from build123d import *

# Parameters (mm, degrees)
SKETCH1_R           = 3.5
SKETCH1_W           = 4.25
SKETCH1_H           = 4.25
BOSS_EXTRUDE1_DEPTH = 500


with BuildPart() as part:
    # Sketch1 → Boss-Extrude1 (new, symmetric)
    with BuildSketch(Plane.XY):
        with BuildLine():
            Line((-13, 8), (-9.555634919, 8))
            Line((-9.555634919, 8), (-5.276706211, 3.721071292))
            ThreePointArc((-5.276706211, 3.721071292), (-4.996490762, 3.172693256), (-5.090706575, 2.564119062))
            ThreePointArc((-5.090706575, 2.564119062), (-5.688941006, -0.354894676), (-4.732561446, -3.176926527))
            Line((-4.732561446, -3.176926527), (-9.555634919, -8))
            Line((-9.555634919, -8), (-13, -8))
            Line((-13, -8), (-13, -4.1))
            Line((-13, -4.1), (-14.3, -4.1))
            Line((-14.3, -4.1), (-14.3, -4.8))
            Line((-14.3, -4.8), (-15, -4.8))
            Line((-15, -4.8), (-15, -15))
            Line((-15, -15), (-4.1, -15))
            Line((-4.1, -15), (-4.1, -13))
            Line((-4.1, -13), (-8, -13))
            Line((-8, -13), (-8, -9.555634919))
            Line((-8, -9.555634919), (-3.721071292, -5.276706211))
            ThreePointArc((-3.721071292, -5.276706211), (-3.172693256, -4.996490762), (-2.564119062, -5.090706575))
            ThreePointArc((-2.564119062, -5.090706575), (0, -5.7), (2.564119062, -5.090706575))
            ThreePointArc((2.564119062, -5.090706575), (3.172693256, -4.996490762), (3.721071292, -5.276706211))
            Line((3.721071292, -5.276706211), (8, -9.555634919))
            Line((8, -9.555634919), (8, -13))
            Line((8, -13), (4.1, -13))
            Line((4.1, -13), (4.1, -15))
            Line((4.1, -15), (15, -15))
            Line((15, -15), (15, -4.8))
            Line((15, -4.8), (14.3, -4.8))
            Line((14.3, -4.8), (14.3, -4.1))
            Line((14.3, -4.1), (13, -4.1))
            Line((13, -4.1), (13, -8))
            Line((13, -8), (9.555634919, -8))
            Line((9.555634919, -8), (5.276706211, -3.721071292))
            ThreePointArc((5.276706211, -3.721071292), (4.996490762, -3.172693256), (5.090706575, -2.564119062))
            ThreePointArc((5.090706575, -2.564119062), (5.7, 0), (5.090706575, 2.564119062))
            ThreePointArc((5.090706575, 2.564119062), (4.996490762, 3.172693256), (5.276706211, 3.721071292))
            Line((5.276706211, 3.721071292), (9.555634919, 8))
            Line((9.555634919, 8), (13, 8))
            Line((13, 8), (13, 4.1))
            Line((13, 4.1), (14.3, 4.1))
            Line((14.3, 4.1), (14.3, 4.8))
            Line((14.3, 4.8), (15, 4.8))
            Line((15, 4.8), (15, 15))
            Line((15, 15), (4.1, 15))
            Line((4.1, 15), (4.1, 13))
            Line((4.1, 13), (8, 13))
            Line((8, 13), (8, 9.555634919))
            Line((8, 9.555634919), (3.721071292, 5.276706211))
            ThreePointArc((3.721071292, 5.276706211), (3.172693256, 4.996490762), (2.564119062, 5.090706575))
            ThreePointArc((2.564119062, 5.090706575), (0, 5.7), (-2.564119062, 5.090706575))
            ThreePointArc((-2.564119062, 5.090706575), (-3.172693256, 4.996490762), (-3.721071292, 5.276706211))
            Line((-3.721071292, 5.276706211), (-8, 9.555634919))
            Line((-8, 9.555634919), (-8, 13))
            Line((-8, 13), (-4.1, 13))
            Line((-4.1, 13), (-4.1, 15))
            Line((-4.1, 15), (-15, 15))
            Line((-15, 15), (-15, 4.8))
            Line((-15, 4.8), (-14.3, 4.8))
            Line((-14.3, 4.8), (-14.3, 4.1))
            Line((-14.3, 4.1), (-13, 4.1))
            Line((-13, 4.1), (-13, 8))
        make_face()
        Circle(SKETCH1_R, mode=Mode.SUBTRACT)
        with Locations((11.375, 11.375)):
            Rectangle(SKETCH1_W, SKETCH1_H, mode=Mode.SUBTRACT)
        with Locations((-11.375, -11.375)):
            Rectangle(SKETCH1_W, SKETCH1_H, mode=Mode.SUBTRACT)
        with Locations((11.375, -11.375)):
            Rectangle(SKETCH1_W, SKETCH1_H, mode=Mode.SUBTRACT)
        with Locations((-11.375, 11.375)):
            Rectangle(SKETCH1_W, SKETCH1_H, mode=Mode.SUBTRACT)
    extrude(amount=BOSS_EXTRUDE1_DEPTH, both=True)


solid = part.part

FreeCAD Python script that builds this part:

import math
import FreeCAD as App
import Part
import Sketcher

doc = App.newDocument("Part")
body = doc.addObject("PartDesign::Body", "Body")

sketch1 = body.newObject("Sketcher::SketchObject", "Sketch")
sketch1.AttachmentSupport = (doc.getObject("XY_Plane"), [""])
sketch1.MapMode = "FlatFace"
sketch1.addGeometry(Part.LineSegment(App.Vector(-13, 8, 0), App.Vector(-9.6, 8, 0)), False)
sketch1.addGeometry(Part.LineSegment(App.Vector(-9.6, 8, 0), App.Vector(-5.3, 3.7, 0)), False)
sketch1.addGeometry(Part.ArcOfCircle(Part.Circle(App.Vector(-6, 3, 0), App.Vector(0, 0, 1), 1), math.radians(-27), math.radians(45)), False)
sketch1.addGeometry(Part.ArcOfCircle(Part.Circle(App.Vector(0, 0, 0), App.Vector(0, 0, 1), 5.7), math.radians(153), math.radians(214)), False)
sketch1.addGeometry(Part.LineSegment(App.Vector(-4.7, -3.2, 0), App.Vector(-9.6, -8, 0)), False)
sketch1.addGeometry(Part.LineSegment(App.Vector(-9.6, -8, 0), App.Vector(-13, -8, 0)), False)
sketch1.addGeometry(Part.LineSegment(App.Vector(-13, -8, 0), App.Vector(-13, -4.1, 0)), False)
sketch1.addGeometry(Part.LineSegment(App.Vector(-13, -4.1, 0), App.Vector(-14.3, -4.1, 0)), False)
sketch1.addGeometry(Part.LineSegment(App.Vector(-14.3, -4.1, 0), App.Vector(-14.3, -4.8, 0)), False)
sketch1.addGeometry(Part.LineSegment(App.Vector(-14.3, -4.8, 0), App.Vector(-15, -4.8, 0)), False)
sketch1.addGeometry(Part.LineSegment(App.Vector(-15, -4.8, 0), App.Vector(-15, -15, 0)), False)
sketch1.addGeometry(Part.LineSegment(App.Vector(-15, -15, 0), App.Vector(-4.1, -15, 0)), False)
sketch1.addGeometry(Part.LineSegment(App.Vector(-4.1, -15, 0), App.Vector(-4.1, -13, 0)), False)
sketch1.addGeometry(Part.LineSegment(App.Vector(-4.1, -13, 0), App.Vector(-8, -13, 0)), False)
sketch1.addGeometry(Part.LineSegment(App.Vector(-8, -13, 0), App.Vector(-8, -9.6, 0)), False)
sketch1.addGeometry(Part.LineSegment(App.Vector(-8, -9.6, 0), App.Vector(-3.7, -5.3, 0)), False)
sketch1.addGeometry(Part.ArcOfCircle(Part.Circle(App.Vector(-3, -6, 0), App.Vector(0, 0, 1), 1), math.radians(63), math.radians(135)), False)
sketch1.addGeometry(Part.ArcOfCircle(Part.Circle(App.Vector(0, 0, 0), App.Vector(0, 0, 1), 5.7), math.radians(-117), math.radians(-63)), False)
sketch1.addGeometry(Part.ArcOfCircle(Part.Circle(App.Vector(3, -6, 0), App.Vector(0, 0, 1), 1), math.radians(45), math.radians(117)), False)
sketch1.addGeometry(Part.LineSegment(App.Vector(3.7, -5.3, 0), App.Vector(8, -9.6, 0)), False)
sketch1.addGeometry(Part.LineSegment(App.Vector(8, -9.6, 0), App.Vector(8, -13, 0)), False)
sketch1.addGeometry(Part.LineSegment(App.Vector(8, -13, 0), App.Vector(4.1, -13, 0)), False)
sketch1.addGeometry(Part.LineSegment(App.Vector(4.1, -13, 0), App.Vector(4.1, -15, 0)), False)
sketch1.addGeometry(Part.LineSegment(App.Vector(4.1, -15, 0), App.Vector(15, -15, 0)), False)
sketch1.addGeometry(Part.LineSegment(App.Vector(15, -15, 0), App.Vector(15, -4.8, 0)), False)
sketch1.addGeometry(Part.LineSegment(App.Vector(15, -4.8, 0), App.Vector(14.3, -4.8, 0)), False)
sketch1.addGeometry(Part.LineSegment(App.Vector(14.3, -4.8, 0), App.Vector(14.3, -4.1, 0)), False)
sketch1.addGeometry(Part.LineSegment(App.Vector(14.3, -4.1, 0), App.Vector(13, -4.1, 0)), False)
sketch1.addGeometry(Part.LineSegment(App.Vector(13, -4.1, 0), App.Vector(13, -8, 0)), False)
sketch1.addGeometry(Part.LineSegment(App.Vector(13, -8, 0), App.Vector(9.6, -8, 0)), False)
sketch1.addGeometry(Part.LineSegment(App.Vector(9.6, -8, 0), App.Vector(5.3, -3.7, 0)), False)
sketch1.addGeometry(Part.ArcOfCircle(Part.Circle(App.Vector(6, -3, 0), App.Vector(0, 0, 1), 1), math.radians(153), math.radians(225)), False)
sketch1.addGeometry(Part.ArcOfCircle(Part.Circle(App.Vector(0, 0, 0), App.Vector(0, 0, 1), 5.7), math.radians(-27), math.radians(27)), False)
sketch1.addGeometry(Part.ArcOfCircle(Part.Circle(App.Vector(6, 3, 0), App.Vector(0, 0, 1), 1), math.radians(135), math.radians(207)), False)
sketch1.addGeometry(Part.LineSegment(App.Vector(5.3, 3.7, 0), App.Vector(9.6, 8, 0)), False)
sketch1.addGeometry(Part.LineSegment(App.Vector(9.6, 8, 0), App.Vector(13, 8, 0)), False)
sketch1.addGeometry(Part.LineSegment(App.Vector(13, 8, 0), App.Vector(13, 4.1, 0)), False)
sketch1.addGeometry(Part.LineSegment(App.Vector(13, 4.1, 0), App.Vector(14.3, 4.1, 0)), False)
sketch1.addGeometry(Part.LineSegment(App.Vector(14.3, 4.1, 0), App.Vector(14.3, 4.8, 0)), False)
sketch1.addGeometry(Part.LineSegment(App.Vector(14.3, 4.8, 0), App.Vector(15, 4.8, 0)), False)
sketch1.addGeometry(Part.LineSegment(App.Vector(15, 4.8, 0), App.Vector(15, 15, 0)), False)
sketch1.addGeometry(Part.LineSegment(App.Vector(15, 15, 0), App.Vector(4.1, 15, 0)), False)
sketch1.addGeometry(Part.LineSegment(App.Vector(4.1, 15, 0), App.Vector(4.1, 13, 0)), False)
sketch1.addGeometry(Part.LineSegment(App.Vector(4.1, 13, 0), App.Vector(8, 13, 0)), False)
sketch1.addGeometry(Part.LineSegment(App.Vector(8, 13, 0), App.Vector(8, 9.6, 0)), False)
sketch1.addGeometry(Part.LineSegment(App.Vector(8, 9.6, 0), App.Vector(3.7, 5.3, 0)), False)
sketch1.addGeometry(Part.ArcOfCircle(Part.Circle(App.Vector(3, 6, 0), App.Vector(0, 0, 1), 1), math.radians(-117), math.radians(-45)), False)
sketch1.addGeometry(Part.ArcOfCircle(Part.Circle(App.Vector(0, 0, 0), App.Vector(0, 0, 1), 5.7), math.radians(63), math.radians(117)), False)
sketch1.addGeometry(Part.ArcOfCircle(Part.Circle(App.Vector(-3, 6, 0), App.Vector(0, 0, 1), 1), math.radians(-135), math.radians(-63)), False)
sketch1.addGeometry(Part.LineSegment(App.Vector(-3.7, 5.3, 0), App.Vector(-8, 9.6, 0)), False)
sketch1.addGeometry(Part.LineSegment(App.Vector(-8, 9.6, 0), App.Vector(-8, 13, 0)), False)
sketch1.addGeometry(Part.LineSegment(App.Vector(-8, 13, 0), App.Vector(-4.1, 13, 0)), False)
sketch1.addGeometry(Part.LineSegment(App.Vector(-4.1, 13, 0), App.Vector(-4.1, 15, 0)), False)
sketch1.addGeometry(Part.LineSegment(App.Vector(-4.1, 15, 0), App.Vector(-15, 15, 0)), False)
sketch1.addGeometry(Part.LineSegment(App.Vector(-15, 15, 0), App.Vector(-15, 4.8, 0)), False)
sketch1.addGeometry(Part.LineSegment(App.Vector(-15, 4.8, 0), App.Vector(-14.3, 4.8, 0)), False)
sketch1.addGeometry(Part.LineSegment(App.Vector(-14.3, 4.8, 0), App.Vector(-14.3, 4.1, 0)), False)
sketch1.addGeometry(Part.LineSegment(App.Vector(-14.3, 4.1, 0), App.Vector(-13, 4.1, 0)), False)
sketch1.addGeometry(Part.LineSegment(App.Vector(-13, 4.1, 0), App.Vector(-13, 8, 0)), False)
sketch1.addGeometry(Part.LineSegment(App.Vector(-9.2, -13.5, 0), App.Vector(-13.5, -13.5, 0)), False)
sketch1.addGeometry(Part.LineSegment(App.Vector(-13.5, -13.5, 0), App.Vector(-13.5, -9.2, 0)), False)
sketch1.addGeometry(Part.LineSegment(App.Vector(-13.5, -9.2, 0), App.Vector(-9.2, -9.2, 0)), False)
sketch1.addGeometry(Part.LineSegment(App.Vector(-9.2, -9.2, 0), App.Vector(-9.2, -13.5, 0)), False)
sketch1.addGeometry(Part.LineSegment(App.Vector(13.5, -13.5, 0), App.Vector(9.2, -13.5, 0)), False)
sketch1.addGeometry(Part.LineSegment(App.Vector(9.2, -13.5, 0), App.Vector(9.2, -9.2, 0)), False)
sketch1.addGeometry(Part.LineSegment(App.Vector(9.2, -9.2, 0), App.Vector(13.5, -9.2, 0)), False)
sketch1.addGeometry(Part.LineSegment(App.Vector(13.5, -9.2, 0), App.Vector(13.5, -13.5, 0)), False)
sketch1.addGeometry(Part.LineSegment(App.Vector(-9.2, 9.2, 0), App.Vector(-13.5, 9.2, 0)), False)
sketch1.addGeometry(Part.LineSegment(App.Vector(-13.5, 9.2, 0), App.Vector(-13.5, 13.5, 0)), False)
sketch1.addGeometry(Part.LineSegment(App.Vector(-13.5, 13.5, 0), App.Vector(-9.2, 13.5, 0)), False)
sketch1.addGeometry(Part.LineSegment(App.Vector(-9.2, 13.5, 0), App.Vector(-9.2, 9.2, 0)), False)
sketch1.addGeometry(Part.Circle(App.Vector(0, 0, 0), App.Vector(0, 0, 1), 3.5), False)
sketch1.addGeometry(Part.LineSegment(App.Vector(13.5, 9.2, 0), App.Vector(9.2, 9.2, 0)), False)
sketch1.addGeometry(Part.LineSegment(App.Vector(9.2, 9.2, 0), App.Vector(9.2, 13.5, 0)), False)
sketch1.addGeometry(Part.LineSegment(App.Vector(9.2, 13.5, 0), App.Vector(13.5, 13.5, 0)), False)
sketch1.addGeometry(Part.LineSegment(App.Vector(13.5, 13.5, 0), App.Vector(13.5, 9.2, 0)), False)
sketch1.addConstraint(Sketcher.Constraint("Coincident", 0, 2, 1, 1))
sketch1.addConstraint(Sketcher.Constraint("Tangent", 1, 2, 2, 2))
sketch1.addConstraint(Sketcher.Constraint("Tangent", 2, 1, 3, 1))
sketch1.addConstraint(Sketcher.Constraint("Coincident", 3, 2, 4, 1))
sketch1.addConstraint(Sketcher.Constraint("Coincident", 4, 2, 5, 1))
sketch1.addConstraint(Sketcher.Constraint("Coincident", 5, 2, 6, 1))
sketch1.addConstraint(Sketcher.Constraint("Coincident", 6, 2, 7, 1))
sketch1.addConstraint(Sketcher.Constraint("Coincident", 7, 2, 8, 1))
sketch1.addConstraint(Sketcher.Constraint("Coincident", 8, 2, 9, 1))
sketch1.addConstraint(Sketcher.Constraint("Coincident", 9, 2, 10, 1))
sketch1.addConstraint(Sketcher.Constraint("Coincident", 10, 2, 11, 1))
sketch1.addConstraint(Sketcher.Constraint("Coincident", 11, 2, 12, 1))
sketch1.addConstraint(Sketcher.Constraint("Coincident", 12, 2, 13, 1))
sketch1.addConstraint(Sketcher.Constraint("Coincident", 13, 2, 14, 1))
sketch1.addConstraint(Sketcher.Constraint("Coincident", 14, 2, 15, 1))
sketch1.addConstraint(Sketcher.Constraint("Tangent", 15, 2, 16, 2))
sketch1.addConstraint(Sketcher.Constraint("Tangent", 16, 1, 17, 1))
sketch1.addConstraint(Sketcher.Constraint("Tangent", 17, 2, 18, 2))
sketch1.addConstraint(Sketcher.Constraint("Tangent", 18, 1, 19, 1))
sketch1.addConstraint(Sketcher.Constraint("Coincident", 19, 2, 20, 1))
sketch1.addConstraint(Sketcher.Constraint("Coincident", 20, 2, 21, 1))
sketch1.addConstraint(Sketcher.Constraint("Coincident", 21, 2, 22, 1))
sketch1.addConstraint(Sketcher.Constraint("Coincident", 22, 2, 23, 1))
sketch1.addConstraint(Sketcher.Constraint("Coincident", 23, 2, 24, 1))
sketch1.addConstraint(Sketcher.Constraint("Coincident", 24, 2, 25, 1))
sketch1.addConstraint(Sketcher.Constraint("Coincident", 25, 2, 26, 1))
sketch1.addConstraint(Sketcher.Constraint("Coincident", 26, 2, 27, 1))
sketch1.addConstraint(Sketcher.Constraint("Coincident", 27, 2, 28, 1))
sketch1.addConstraint(Sketcher.Constraint("Coincident", 28, 2, 29, 1))
sketch1.addConstraint(Sketcher.Constraint("Coincident", 29, 2, 30, 1))
sketch1.addConstraint(Sketcher.Constraint("Tangent", 30, 2, 31, 2))
sketch1.addConstraint(Sketcher.Constraint("Tangent", 31, 1, 32, 1))
sketch1.addConstraint(Sketcher.Constraint("Tangent", 32, 2, 33, 2))
sketch1.addConstraint(Sketcher.Constraint("Tangent", 33, 1, 34, 1))
sketch1.addConstraint(Sketcher.Constraint("Coincident", 34, 2, 35, 1))
sketch1.addConstraint(Sketcher.Constraint("Coincident", 35, 2, 36, 1))
sketch1.addConstraint(Sketcher.Constraint("Coincident", 36, 2, 37, 1))
sketch1.addConstraint(Sketcher.Constraint("Coincident", 37, 2, 38, 1))
sketch1.addConstraint(Sketcher.Constraint("Coincident", 38, 2, 39, 1))
sketch1.addConstraint(Sketcher.Constraint("Coincident", 39, 2, 40, 1))
sketch1.addConstraint(Sketcher.Constraint("Coincident", 40, 2, 41, 1))
sketch1.addConstraint(Sketcher.Constraint("Coincident", 41, 2, 42, 1))
sketch1.addConstraint(Sketcher.Constraint("Coincident", 42, 2, 43, 1))
sketch1.addConstraint(Sketcher.Constraint("Coincident", 43, 2, 44, 1))
sketch1.addConstraint(Sketcher.Constraint("Coincident", 44, 2, 45, 1))
sketch1.addConstraint(Sketcher.Constraint("Tangent", 45, 2, 46, 2))
sketch1.addConstraint(Sketcher.Constraint("Tangent", 46, 1, 47, 1))
sketch1.addConstraint(Sketcher.Constraint("Tangent", 47, 2, 48, 2))
sketch1.addConstraint(Sketcher.Constraint("Tangent", 48, 1, 49, 1))
sketch1.addConstraint(Sketcher.Constraint("Coincident", 49, 2, 50, 1))
sketch1.addConstraint(Sketcher.Constraint("Coincident", 50, 2, 51, 1))
sketch1.addConstraint(Sketcher.Constraint("Coincident", 51, 2, 52, 1))
sketch1.addConstraint(Sketcher.Constraint("Coincident", 52, 2, 53, 1))
sketch1.addConstraint(Sketcher.Constraint("Coincident", 53, 2, 54, 1))
sketch1.addConstraint(Sketcher.Constraint("Coincident", 54, 2, 55, 1))
sketch1.addConstraint(Sketcher.Constraint("Coincident", 55, 2, 56, 1))
sketch1.addConstraint(Sketcher.Constraint("Coincident", 56, 2, 57, 1))
sketch1.addConstraint(Sketcher.Constraint("Coincident", 57, 2, 58, 1))
sketch1.addConstraint(Sketcher.Constraint("Coincident", 58, 2, 0, 1))
sketch1.addConstraint(Sketcher.Constraint("Coincident", 59, 2, 60, 1))
sketch1.addConstraint(Sketcher.Constraint("Coincident", 60, 2, 61, 1))
sketch1.addConstraint(Sketcher.Constraint("Coincident", 61, 2, 62, 1))
sketch1.addConstraint(Sketcher.Constraint("Coincident", 62, 2, 59, 1))
sketch1.addConstraint(Sketcher.Constraint("Coincident", 63, 2, 64, 1))
sketch1.addConstraint(Sketcher.Constraint("Coincident", 64, 2, 65, 1))
sketch1.addConstraint(Sketcher.Constraint("Coincident", 65, 2, 66, 1))
sketch1.addConstraint(Sketcher.Constraint("Coincident", 66, 2, 63, 1))
sketch1.addConstraint(Sketcher.Constraint("Coincident", 67, 2, 68, 1))
sketch1.addConstraint(Sketcher.Constraint("Coincident", 68, 2, 69, 1))
sketch1.addConstraint(Sketcher.Constraint("Coincident", 69, 2, 70, 1))
sketch1.addConstraint(Sketcher.Constraint("Coincident", 70, 2, 67, 1))
sketch1.addConstraint(Sketcher.Constraint("Coincident", 72, 2, 73, 1))
sketch1.addConstraint(Sketcher.Constraint("Coincident", 73, 2, 74, 1))
sketch1.addConstraint(Sketcher.Constraint("Coincident", 74, 2, 75, 1))
sketch1.addConstraint(Sketcher.Constraint("Coincident", 75, 2, 72, 1))
sketch1.addConstraint(Sketcher.Constraint("Horizontal", 0))
sketch1.addConstraint(Sketcher.Constraint("Horizontal", 5))
sketch1.addConstraint(Sketcher.Constraint("Vertical", 6))
sketch1.addConstraint(Sketcher.Constraint("Horizontal", 7))
sketch1.addConstraint(Sketcher.Constraint("Vertical", 8))
sketch1.addConstraint(Sketcher.Constraint("Horizontal", 9))
sketch1.addConstraint(Sketcher.Constraint("Vertical", 10))
sketch1.addConstraint(Sketcher.Constraint("Horizontal", 11))
sketch1.addConstraint(Sketcher.Constraint("Vertical", 12))
sketch1.addConstraint(Sketcher.Constraint("Horizontal", 13))
sketch1.addConstraint(Sketcher.Constraint("Vertical", 14))
sketch1.addConstraint(Sketcher.Constraint("Vertical", 20))
sketch1.addConstraint(Sketcher.Constraint("Horizontal", 21))
sketch1.addConstraint(Sketcher.Constraint("Vertical", 22))
sketch1.addConstraint(Sketcher.Constraint("Horizontal", 23))
sketch1.addConstraint(Sketcher.Constraint("Vertical", 24))
sketch1.addConstraint(Sketcher.Constraint("Horizontal", 25))
sketch1.addConstraint(Sketcher.Constraint("Vertical", 26))
sketch1.addConstraint(Sketcher.Constraint("Horizontal", 27))
sketch1.addConstraint(Sketcher.Constraint("Vertical", 28))
sketch1.addConstraint(Sketcher.Constraint("Horizontal", 29))
sketch1.addConstraint(Sketcher.Constraint("Horizontal", 35))
sketch1.addConstraint(Sketcher.Constraint("Vertical", 36))
sketch1.addConstraint(Sketcher.Constraint("Horizontal", 37))
sketch1.addConstraint(Sketcher.Constraint("Vertical", 38))
sketch1.addConstraint(Sketcher.Constraint("Horizontal", 39))
sketch1.addConstraint(Sketcher.Constraint("Vertical", 40))
sketch1.addConstraint(Sketcher.Constraint("Horizontal", 41))
sketch1.addConstraint(Sketcher.Constraint("Vertical", 42))
sketch1.addConstraint(Sketcher.Constraint("Horizontal", 43))
sketch1.addConstraint(Sketcher.Constraint("Vertical", 44))
sketch1.addConstraint(Sketcher.Constraint("Vertical", 50))
sketch1.addConstraint(Sketcher.Constraint("Horizontal", 51))
sketch1.addConstraint(Sketcher.Constraint("Vertical", 52))
sketch1.addConstraint(Sketcher.Constraint("Horizontal", 53))
sketch1.addConstraint(Sketcher.Constraint("Vertical", 54))
sketch1.addConstraint(Sketcher.Constraint("Horizontal", 55))
sketch1.addConstraint(Sketcher.Constraint("Vertical", 56))
sketch1.addConstraint(Sketcher.Constraint("Horizontal", 57))
sketch1.addConstraint(Sketcher.Constraint("Vertical", 58))
sketch1.addConstraint(Sketcher.Constraint("Horizontal", 59))
sketch1.addConstraint(Sketcher.Constraint("Vertical", 60))
sketch1.addConstraint(Sketcher.Constraint("Horizontal", 61))
sketch1.addConstraint(Sketcher.Constraint("Vertical", 62))
sketch1.addConstraint(Sketcher.Constraint("Horizontal", 63))
sketch1.addConstraint(Sketcher.Constraint("Vertical", 64))
sketch1.addConstraint(Sketcher.Constraint("Horizontal", 65))
sketch1.addConstraint(Sketcher.Constraint("Vertical", 66))
sketch1.addConstraint(Sketcher.Constraint("Horizontal", 67))
sketch1.addConstraint(Sketcher.Constraint("Vertical", 68))
sketch1.addConstraint(Sketcher.Constraint("Horizontal", 69))
sketch1.addConstraint(Sketcher.Constraint("Vertical", 70))
sketch1.addConstraint(Sketcher.Constraint("Horizontal", 72))
sketch1.addConstraint(Sketcher.Constraint("Vertical", 73))
sketch1.addConstraint(Sketcher.Constraint("Horizontal", 74))
sketch1.addConstraint(Sketcher.Constraint("Vertical", 75))
sketch1.addConstraint(Sketcher.Constraint("Coincident", 3, 3, -1, 1))
sketch1.addConstraint(Sketcher.Constraint("Coincident", 17, 3, -1, 1))
sketch1.addConstraint(Sketcher.Constraint("Coincident", 32, 3, -1, 1))
sketch1.addConstraint(Sketcher.Constraint("Coincident", 47, 3, -1, 1))
sketch1.addConstraint(Sketcher.Constraint("Coincident", 71, 3, -1, 1))
sketch1.addConstraint(Sketcher.Constraint("Equal", 2, 16))
sketch1.addConstraint(Sketcher.Constraint("Equal", 3, 17))
sketch1.addConstraint(Sketcher.Constraint("Equal", 16, 18))
sketch1.addConstraint(Sketcher.Constraint("Equal", 18, 31))
sketch1.addConstraint(Sketcher.Constraint("Equal", 17, 32))
sketch1.addConstraint(Sketcher.Constraint("Equal", 31, 33))
sketch1.addConstraint(Sketcher.Constraint("Equal", 33, 46))
sketch1.addConstraint(Sketcher.Constraint("Equal", 32, 47))
sketch1.addConstraint(Sketcher.Constraint("Equal", 46, 48))
sketch1.addConstraint(Sketcher.Constraint("Symmetric", 0, 2, 29, 2, -1, 1))
sketch1.addConstraint(Sketcher.Constraint("Symmetric", 4, 2, 34, 2, -1, 1))
sketch1.addConstraint(Sketcher.Constraint("Symmetric", 6, 2, 36, 2, -1, 1))
sketch1.addConstraint(Sketcher.Constraint("Symmetric", 8, 2, 38, 2, -1, 1))
sketch1.addConstraint(Sketcher.Constraint("Symmetric", 10, 2, 40, 2, -1, 1))
sketch1.addConstraint(Sketcher.Constraint("Symmetric", 12, 2, 42, 2, -1, 1))
sketch1.addConstraint(Sketcher.Constraint("Symmetric", 14, 2, 44, 2, -1, 1))
sketch1.addConstraint(Sketcher.Constraint("Symmetric", 18, 1, 48, 1, -1, 1))
sketch1.addConstraint(Sketcher.Constraint("Symmetric", 20, 2, 50, 2, -1, 1))
sketch1.addConstraint(Sketcher.Constraint("Symmetric", 22, 2, 52, 2, -1, 1))
sketch1.addConstraint(Sketcher.Constraint("Symmetric", 24, 2, 54, 2, -1, 1))
sketch1.addConstraint(Sketcher.Constraint("Symmetric", 26, 2, 56, 2, -1, 1))
sketch1.addConstraint(Sketcher.Constraint("Symmetric", 65, 2, 67, 2, -1, 1))
sketch1.addConstraint(Sketcher.Constraint("Symmetric", 63, 2, 69, 2, -1, 1))
sketch1.addConstraint(Sketcher.Constraint("Symmetric", 61, 2, 72, 2, -1, 1))
sketch1.addConstraint(Sketcher.Constraint("Symmetric", 59, 2, 74, 2, -1, 1))
sketch1.addConstraint(Sketcher.Constraint("Symmetric", 15, 2, 18, 1, -2))
sketch1.addConstraint(Sketcher.Constraint("Symmetric", 13, 2, 20, 2, -2))
sketch1.addConstraint(Sketcher.Constraint("Symmetric", 11, 2, 22, 2, -2))
sketch1.addConstraint(Sketcher.Constraint("Symmetric", 9, 2, 24, 2, -2))
sketch1.addConstraint(Sketcher.Constraint("Symmetric", 7, 2, 26, 2, -2))
sketch1.addConstraint(Sketcher.Constraint("Symmetric", 5, 2, 28, 2, -2))
sketch1.addConstraint(Sketcher.Constraint("Symmetric", 1, 2, 33, 1, -2))
sketch1.addConstraint(Sketcher.Constraint("Symmetric", 62, 2, 63, 2, -2))
sketch1.addConstraint(Sketcher.Constraint("Symmetric", 60, 2, 65, 2, -2))
sketch1.addConstraint(Sketcher.Constraint("Perpendicular", 1, 4))
sketch1.addConstraint(Sketcher.Constraint("Parallel", 4, 15))
sketch1.addConstraint(Sketcher.Constraint("Perpendicular", 15, 19))
sketch1.addConstraint(Sketcher.Constraint("Parallel", 19, 30))
sketch1.addConstraint(Sketcher.Constraint("Parallel", 34, 45))
sketch1.addConstraint(Sketcher.Constraint("Vertical", 6, 2, 57, 2))
sketch1.addConstraint(Sketcher.Constraint("Equal", 51, 6))
sketch1.addConstraint(Sketcher.Constraint("Equal", 55, 8))
sketch1.addConstraint(Sketcher.Constraint("Equal", 35, 14))
sketch1.addConstraint(Sketcher.Constraint("Equal", 74, 60))
sketch1.addConstraint(Sketcher.Constraint("Equal", 1, 15))
sketch1.addConstraint(Sketcher.Constraint("Diameter", 71, 7.0))
sketch1.addConstraint(Sketcher.Constraint("Radius", 2, 1.0))
sketch1.addConstraint(Sketcher.Constraint("Radius", 3, 5.7))
sketch1.addConstraint(Sketcher.Constraint("DistanceY", 12, 1, 12, 2, 2.0))
sketch1.addConstraint(Sketcher.Constraint("DistanceX", 7, 2, 7, 1, 1.3))
sketch1.addConstraint(Sketcher.Constraint("DistanceX", 9, 2, 9, 1, 0.7))
sketch1.addConstraint(Sketcher.Constraint("DistanceX", 11, 1, 11, 2, 10.9))
sketch1.addConstraint(Sketcher.Constraint("DistanceX", 13, 2, 13, 1, 3.9))
sketch1.addConstraint(Sketcher.Constraint("DistanceY", 10, 2, 10, 1, 10.2))
sketch1.addConstraint(Sketcher.Constraint("DistanceY", -1, 1, 0, 2, 8.0))
sketch1.addConstraint(Sketcher.Constraint("DistanceX", 59, 2, 59, 1, 4.25))
sketch1.addConstraint(Sketcher.Constraint("DistanceX", 59, 2, -1, 1, 13.5))
sketch1.addConstraint(Sketcher.Constraint("DistanceY", 59, 2, -1, 1, 13.5))
sketch1.addConstraint(Sketcher.Constraint("Distance", 1, 6.051319))
pad1 = body.newObject("PartDesign::Pad", "Pad")
pad1.Profile = sketch1
pad1.Length = 1000
pad1.Midplane = True

doc.recompute()
